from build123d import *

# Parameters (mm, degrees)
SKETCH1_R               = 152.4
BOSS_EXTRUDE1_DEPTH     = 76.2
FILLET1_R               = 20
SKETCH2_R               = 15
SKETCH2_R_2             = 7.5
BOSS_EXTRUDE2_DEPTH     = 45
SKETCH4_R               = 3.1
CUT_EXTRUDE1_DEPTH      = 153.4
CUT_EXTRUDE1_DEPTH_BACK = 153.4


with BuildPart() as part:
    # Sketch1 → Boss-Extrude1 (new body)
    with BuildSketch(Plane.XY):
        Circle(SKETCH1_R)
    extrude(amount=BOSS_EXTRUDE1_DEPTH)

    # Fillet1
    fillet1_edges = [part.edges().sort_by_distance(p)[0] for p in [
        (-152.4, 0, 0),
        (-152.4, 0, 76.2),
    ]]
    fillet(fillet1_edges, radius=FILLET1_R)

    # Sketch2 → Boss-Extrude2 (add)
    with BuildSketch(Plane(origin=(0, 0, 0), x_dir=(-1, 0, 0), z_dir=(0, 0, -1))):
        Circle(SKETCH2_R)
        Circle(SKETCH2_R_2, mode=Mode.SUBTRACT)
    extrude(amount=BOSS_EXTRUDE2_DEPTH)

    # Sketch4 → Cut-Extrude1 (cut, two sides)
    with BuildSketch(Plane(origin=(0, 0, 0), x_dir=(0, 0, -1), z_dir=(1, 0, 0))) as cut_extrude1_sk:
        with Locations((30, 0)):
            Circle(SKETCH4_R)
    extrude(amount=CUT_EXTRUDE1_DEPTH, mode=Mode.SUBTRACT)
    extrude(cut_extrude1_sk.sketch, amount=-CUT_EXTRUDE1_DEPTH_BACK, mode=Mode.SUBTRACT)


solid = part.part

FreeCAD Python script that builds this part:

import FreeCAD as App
import Part
import Sketcher


def edges_at(feature, points):
    """Names of the edges that pass closest to the given points."""
    edges = feature.Shape.Edges
    near = lambda p: min(range(len(edges)), key=lambda i: edges[i].distToShape(Part.Vertex(*p))[0])
    return sorted({f"Edge{near(p) + 1}" for p in points})

doc = App.newDocument("Part")
body = doc.addObject("PartDesign::Body", "Body")

# Sketch on XY plane
sketch1 = body.newObject("Sketcher::SketchObject", "Sketch")
sketch1.AttachmentSupport = (doc.getObject("XY_Plane"), [""])
sketch1.MapMode = "FlatFace"
sketch1.addGeometry(Part.Circle(App.Vector(0, 0, 0), App.Vector(0, 0, 1), 152), False)
sketch1.addConstraint(Sketcher.Constraint("Coincident", 0, 3, -1, 1))
sketch1.addConstraint(Sketcher.Constraint("Diameter", 0, 304.8))
pad1 = body.newObject("PartDesign::Pad", "Pad")
pad1.Profile = sketch1
pad1.Length = 76.2
doc.recompute()

fillet = body.newObject("PartDesign::Fillet", "Fillet")
fillet.Base = (pad1, edges_at(pad1, [(-152.4, 0, 0), (-152.4, 0, 76.2)]))
fillet.Radius = 20

# Sketch on XY plane
sketch2 = body.newObject("Sketcher::SketchObject", "Sketch001")
sketch2.AttachmentSupport = (doc.getObject("XY_Plane"), [""])
sketch2.MapMode = "FlatFace"
sketch2.addGeometry(Part.Circle(App.Vector(0, 0, 0), App.Vector(0, 0, 1), 15), False)
sketch2.addGeometry(Part.Circle(App.Vector(0, 0, 0), App.Vector(0, 0, 1), 8), False)
sketch2.addConstraint(Sketcher.Constraint("Coincident", 0, 3, -1, 1))
sketch2.addConstraint(Sketcher.Constraint("Coincident", 1, 3, -1, 1))
sketch2.addConstraint(Sketcher.Constraint("Diameter", 0, 30.0))
sketch2.addConstraint(Sketcher.Constraint("Diameter", 1, 15.0))
pad2 = body.newObject("PartDesign::Pad", "Pad001")
pad2.Profile = sketch2
pad2.Length = 45
pad2.Reversed = True

# Sketch on YZ plane
sketch3 = body.newObject("Sketcher::SketchObject", "Sketch002")
sketch3.AttachmentSupport = (doc.getObject("YZ_Plane"), [""])
sketch3.MapMode = "FlatFace"
sketch3.addGeometry(Part.Circle(App.Vector(0, -30, 0), App.Vector(0, 0, 1), 3.1), False)
sketch3.addConstraint(Sketcher.Constraint("PointOnObject", 0, 3, -2))
sketch3.addConstraint(Sketcher.Constraint("Diameter", 0, 6.2))
sketch3.addConstraint(Sketcher.Constraint("DistanceY", 0, 3, -1, 1, 30.0))
pocket1 = body.newObject("PartDesign::Pocket", "Pocket")
pocket1.Profile = sketch3
pocket1.Type = "ThroughAll"
pocket1.Midplane = True

doc.recompute()
